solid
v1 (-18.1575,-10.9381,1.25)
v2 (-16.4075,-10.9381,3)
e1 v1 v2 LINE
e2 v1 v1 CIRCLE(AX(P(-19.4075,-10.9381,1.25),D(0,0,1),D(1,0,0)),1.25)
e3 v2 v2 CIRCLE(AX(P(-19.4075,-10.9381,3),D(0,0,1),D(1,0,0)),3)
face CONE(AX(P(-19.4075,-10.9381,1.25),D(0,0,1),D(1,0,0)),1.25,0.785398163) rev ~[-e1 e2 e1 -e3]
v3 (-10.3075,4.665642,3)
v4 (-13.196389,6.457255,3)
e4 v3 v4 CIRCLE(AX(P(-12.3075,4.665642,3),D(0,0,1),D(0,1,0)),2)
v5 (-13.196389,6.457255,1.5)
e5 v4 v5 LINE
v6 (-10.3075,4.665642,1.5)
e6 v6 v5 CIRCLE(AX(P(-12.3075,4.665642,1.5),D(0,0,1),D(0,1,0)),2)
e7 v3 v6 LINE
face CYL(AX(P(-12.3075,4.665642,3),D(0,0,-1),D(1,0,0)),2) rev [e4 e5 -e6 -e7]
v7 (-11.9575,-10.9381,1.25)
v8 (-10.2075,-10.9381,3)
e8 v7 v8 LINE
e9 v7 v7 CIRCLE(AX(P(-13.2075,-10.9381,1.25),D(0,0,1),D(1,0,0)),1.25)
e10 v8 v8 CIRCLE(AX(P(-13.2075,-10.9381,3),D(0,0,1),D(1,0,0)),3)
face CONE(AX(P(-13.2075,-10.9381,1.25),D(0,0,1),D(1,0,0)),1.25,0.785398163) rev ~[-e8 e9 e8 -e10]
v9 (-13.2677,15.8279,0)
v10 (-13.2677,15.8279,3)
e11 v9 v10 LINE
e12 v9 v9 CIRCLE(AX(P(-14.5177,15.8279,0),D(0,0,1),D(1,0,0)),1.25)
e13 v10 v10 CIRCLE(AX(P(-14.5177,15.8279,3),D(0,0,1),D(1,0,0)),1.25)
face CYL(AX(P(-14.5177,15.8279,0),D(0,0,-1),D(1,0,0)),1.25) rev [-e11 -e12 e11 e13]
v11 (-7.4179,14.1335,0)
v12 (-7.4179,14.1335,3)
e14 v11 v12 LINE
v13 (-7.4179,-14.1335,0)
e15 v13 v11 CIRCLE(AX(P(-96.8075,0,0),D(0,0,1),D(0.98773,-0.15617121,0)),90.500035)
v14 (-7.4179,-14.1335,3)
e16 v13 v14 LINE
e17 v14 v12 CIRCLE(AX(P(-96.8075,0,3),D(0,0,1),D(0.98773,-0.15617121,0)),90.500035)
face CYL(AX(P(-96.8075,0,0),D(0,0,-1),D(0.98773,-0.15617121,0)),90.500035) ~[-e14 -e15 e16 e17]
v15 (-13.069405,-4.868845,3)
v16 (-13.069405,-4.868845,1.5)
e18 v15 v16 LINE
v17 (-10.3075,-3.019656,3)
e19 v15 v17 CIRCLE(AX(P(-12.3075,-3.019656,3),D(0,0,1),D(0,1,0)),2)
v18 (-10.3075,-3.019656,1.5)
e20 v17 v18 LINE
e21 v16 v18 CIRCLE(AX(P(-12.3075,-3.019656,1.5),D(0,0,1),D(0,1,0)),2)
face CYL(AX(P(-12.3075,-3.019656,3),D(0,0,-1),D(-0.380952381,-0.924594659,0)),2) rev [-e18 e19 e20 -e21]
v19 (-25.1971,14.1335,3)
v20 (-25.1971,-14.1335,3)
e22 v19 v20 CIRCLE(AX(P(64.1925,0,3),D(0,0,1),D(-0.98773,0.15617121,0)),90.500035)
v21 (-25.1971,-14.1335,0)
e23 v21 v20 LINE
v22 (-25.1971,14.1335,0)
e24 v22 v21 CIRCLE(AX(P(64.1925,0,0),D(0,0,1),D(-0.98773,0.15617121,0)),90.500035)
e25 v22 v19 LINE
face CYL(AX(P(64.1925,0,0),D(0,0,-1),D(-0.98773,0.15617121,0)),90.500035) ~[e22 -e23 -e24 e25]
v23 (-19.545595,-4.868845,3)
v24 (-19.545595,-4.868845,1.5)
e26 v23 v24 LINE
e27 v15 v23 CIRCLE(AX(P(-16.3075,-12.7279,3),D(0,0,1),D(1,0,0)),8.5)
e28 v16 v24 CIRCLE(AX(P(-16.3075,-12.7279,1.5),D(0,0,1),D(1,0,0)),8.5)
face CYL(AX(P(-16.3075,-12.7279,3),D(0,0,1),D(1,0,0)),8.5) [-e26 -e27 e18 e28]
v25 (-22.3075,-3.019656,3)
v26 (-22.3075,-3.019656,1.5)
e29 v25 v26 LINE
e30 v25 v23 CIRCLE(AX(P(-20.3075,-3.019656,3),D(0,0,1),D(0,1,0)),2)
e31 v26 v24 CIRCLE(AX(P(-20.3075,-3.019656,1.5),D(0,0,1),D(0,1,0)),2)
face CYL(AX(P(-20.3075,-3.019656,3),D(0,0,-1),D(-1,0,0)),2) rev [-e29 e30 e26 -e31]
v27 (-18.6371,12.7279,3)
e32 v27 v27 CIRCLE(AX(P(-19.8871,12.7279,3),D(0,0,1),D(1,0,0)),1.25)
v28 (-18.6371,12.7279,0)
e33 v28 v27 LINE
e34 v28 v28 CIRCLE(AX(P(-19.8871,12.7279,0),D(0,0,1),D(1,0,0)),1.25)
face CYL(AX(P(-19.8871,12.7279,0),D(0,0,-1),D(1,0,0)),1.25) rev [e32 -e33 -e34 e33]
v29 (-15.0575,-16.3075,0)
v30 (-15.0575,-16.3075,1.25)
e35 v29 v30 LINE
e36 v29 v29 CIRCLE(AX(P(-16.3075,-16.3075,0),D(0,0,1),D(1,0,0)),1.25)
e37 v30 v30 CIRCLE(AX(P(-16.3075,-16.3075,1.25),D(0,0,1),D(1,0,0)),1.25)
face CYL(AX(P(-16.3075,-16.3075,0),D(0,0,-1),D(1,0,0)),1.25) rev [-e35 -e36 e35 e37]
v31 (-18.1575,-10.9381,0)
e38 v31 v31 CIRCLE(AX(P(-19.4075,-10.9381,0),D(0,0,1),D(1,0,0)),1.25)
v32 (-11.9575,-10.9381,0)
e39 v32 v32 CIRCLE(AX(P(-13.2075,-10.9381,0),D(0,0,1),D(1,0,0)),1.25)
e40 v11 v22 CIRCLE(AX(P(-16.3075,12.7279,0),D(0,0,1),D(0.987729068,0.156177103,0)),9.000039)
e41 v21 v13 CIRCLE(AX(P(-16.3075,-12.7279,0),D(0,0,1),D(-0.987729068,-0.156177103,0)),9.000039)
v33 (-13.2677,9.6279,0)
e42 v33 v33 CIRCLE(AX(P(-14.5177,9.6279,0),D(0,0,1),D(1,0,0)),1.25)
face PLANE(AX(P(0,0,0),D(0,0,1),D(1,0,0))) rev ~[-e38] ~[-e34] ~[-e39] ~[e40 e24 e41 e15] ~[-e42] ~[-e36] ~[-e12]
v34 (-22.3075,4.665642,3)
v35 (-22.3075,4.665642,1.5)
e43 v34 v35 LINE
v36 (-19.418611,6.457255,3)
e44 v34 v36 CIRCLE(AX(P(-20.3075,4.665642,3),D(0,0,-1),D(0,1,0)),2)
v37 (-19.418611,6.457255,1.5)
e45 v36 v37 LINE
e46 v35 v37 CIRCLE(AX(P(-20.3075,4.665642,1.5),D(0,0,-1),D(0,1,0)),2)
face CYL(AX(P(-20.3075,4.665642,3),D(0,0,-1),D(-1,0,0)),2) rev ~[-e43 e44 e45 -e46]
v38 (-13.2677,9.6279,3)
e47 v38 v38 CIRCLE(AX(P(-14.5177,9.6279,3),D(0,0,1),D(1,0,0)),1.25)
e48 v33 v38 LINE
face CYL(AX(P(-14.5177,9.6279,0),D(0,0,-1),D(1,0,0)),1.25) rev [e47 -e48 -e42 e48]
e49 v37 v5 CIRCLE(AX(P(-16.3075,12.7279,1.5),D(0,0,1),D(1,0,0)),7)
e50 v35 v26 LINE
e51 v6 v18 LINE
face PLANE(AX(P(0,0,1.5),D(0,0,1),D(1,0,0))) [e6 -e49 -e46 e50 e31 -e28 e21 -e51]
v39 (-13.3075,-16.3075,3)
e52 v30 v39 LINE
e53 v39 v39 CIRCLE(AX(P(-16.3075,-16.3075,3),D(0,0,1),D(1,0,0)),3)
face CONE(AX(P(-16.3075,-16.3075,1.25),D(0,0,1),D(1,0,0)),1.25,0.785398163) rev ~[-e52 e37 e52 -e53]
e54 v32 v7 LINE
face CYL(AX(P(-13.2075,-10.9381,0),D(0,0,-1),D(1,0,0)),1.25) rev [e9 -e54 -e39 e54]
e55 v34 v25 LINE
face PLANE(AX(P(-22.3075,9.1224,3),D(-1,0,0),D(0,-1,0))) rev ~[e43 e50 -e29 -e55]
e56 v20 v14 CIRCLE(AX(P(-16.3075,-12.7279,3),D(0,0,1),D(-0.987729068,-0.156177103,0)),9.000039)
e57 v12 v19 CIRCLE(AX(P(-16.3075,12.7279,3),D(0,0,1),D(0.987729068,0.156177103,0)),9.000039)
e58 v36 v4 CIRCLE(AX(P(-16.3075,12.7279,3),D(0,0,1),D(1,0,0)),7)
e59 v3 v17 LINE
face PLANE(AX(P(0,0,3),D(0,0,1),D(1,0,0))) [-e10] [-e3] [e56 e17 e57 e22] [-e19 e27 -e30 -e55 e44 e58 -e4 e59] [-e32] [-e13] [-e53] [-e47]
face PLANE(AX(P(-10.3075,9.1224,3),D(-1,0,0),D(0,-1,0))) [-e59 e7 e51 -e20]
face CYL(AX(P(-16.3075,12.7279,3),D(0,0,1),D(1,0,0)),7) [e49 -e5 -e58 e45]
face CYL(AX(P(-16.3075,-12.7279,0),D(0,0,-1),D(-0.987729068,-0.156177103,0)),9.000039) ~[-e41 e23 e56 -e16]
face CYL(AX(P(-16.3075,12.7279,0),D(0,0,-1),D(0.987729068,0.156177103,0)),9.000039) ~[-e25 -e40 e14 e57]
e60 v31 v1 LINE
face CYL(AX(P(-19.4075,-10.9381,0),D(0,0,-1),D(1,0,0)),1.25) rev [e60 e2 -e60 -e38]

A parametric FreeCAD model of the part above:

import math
import FreeCAD as App
import Part
import Sketcher
from FreeCAD import Vector


def edges_at(feature, points):
    """Names of the edges that pass closest to the given points."""
    edges = feature.Shape.Edges
    near = lambda p: min(range(len(edges)), key=lambda i: edges[i].distToShape(Part.Vertex(*p))[0])
    return sorted({f"Edge{near(p) + 1}" for p in points})

doc = App.newDocument("Part")
params = doc.addObject("Spreadsheet::Sheet", "Params")
for row, (alias, value) in enumerate([
    ("sketch1_radius", "9 mm"),
    ("sketch1_diameter", "2.5 mm"),
    ("sketch1_radius2", "90.5 mm"),
    ("pad1_length", "3 mm"),
    ("chamfer_size", "1.75 mm"),
    ("sketch2_radius", "7 mm"),
    ("sketch2_radius2", "8.5 mm"),
    ("sketch2_width", "6 mm"),
    ("pocket1_length", "1.5 mm"),
    ("fillet_radius", "2 mm"),
], start=1):
    params.set(f"A{row}", alias)
    params.set(f"B{row}", "=" + value)
    params.setAlias(f"B{row}", alias)

body = doc.addObject("PartDesign::Body", "Body")

# Sketch on XY plane
sketch1 = doc.addObject("Sketcher::SketchObject", "Sketch")
body.addObject(sketch1)
sketch1.AttachmentSupport = (doc.XY_Plane, [""])
sketch1.MapMode = "FlatFace"
sketch1.addGeometry([
    Part.ArcOfCircle(Part.Circle(Vector(-96.8, 0, 0), Vector(0, 0, 1), 90.5), math.radians(-8.98), math.radians(8.98)),  # 0
    Part.ArcOfCircle(Part.Circle(Vector(-16.3, 12.7, 0), Vector(0, 0, 1), 9), math.radians(9), math.radians(171)),  # 1
    Part.ArcOfCircle(Part.Circle(Vector(64.2, 0, 0), Vector(0, 0, 1), 90.5), math.radians(171.02), math.radians(188.98)),  # 2
    Part.ArcOfCircle(Part.Circle(Vector(-16.3, -12.7, 0), Vector(0, 0, 1), 9), math.radians(-171), math.radians(-9)),  # 3
    Part.Circle(Vector(-19.4, -10.9, 0), Vector(0, 0, 1), 1.2),  # 4
    Part.Circle(Vector(-16.3, -16.3, 0), Vector(0, 0, 1), 1.2),  # 5
    Part.Circle(Vector(-13.2, -10.9, 0), Vector(0, 0, 1), 1.2),  # 6
    Part.Circle(Vector(-19.9, 12.7, 0), Vector(0, 0, 1), 1.2),  # 7
    Part.Circle(Vector(-14.5, 9.6, 0), Vector(0, 0, 1), 1.2),  # 8
    Part.Circle(Vector(-14.5, 15.8, 0), Vector(0, 0, 1), 1.2),  # 9
], False)
sketch1.addConstraint([
    Sketcher.Constraint("Tangent", 0, 2, 1, 1),
    Sketcher.Constraint("Tangent", 1, 2, 2, 1),
    Sketcher.Constraint("Tangent", 2, 2, 3, 1),
    Sketcher.Constraint("Tangent", 3, 2, 0, 1),
    Sketcher.Constraint("Equal", 0, 2),
    Sketcher.Constraint("Equal", 1, 3),
    Sketcher.Constraint("Equal", 4, 5),
    Sketcher.Constraint("Equal", 5, 6),
    Sketcher.Constraint("Equal", 6, 7),
    Sketcher.Constraint("Equal", 7, 8),
    Sketcher.Constraint("Equal", 8, 9),
    Sketcher.Constraint("Symmetric", 1, 3, 3, 3, -1),
    Sketcher.Constraint("Horizontal", 4, 3, 6, 3),
    Sketcher.Constraint("Horizontal", 1, 3, 7, 3),
    Sketcher.Constraint("Vertical", 3, 3, 5, 3),
    Sketcher.Constraint("Vertical", 8, 3, 9, 3),
    Sketcher.Constraint("Radius", 1, 9.0),
    Sketcher.Constraint("Diameter", 4, 2.5),
    Sketcher.Constraint("Radius", 0, 90.5),
    Sketcher.Constraint("DistanceX", 4, 3, 6, 3, 6.2),
    Sketcher.Constraint("DistanceY", 8, 3, 9, 3, 6.2),
    Sketcher.Constraint("DistanceX", 0, 3, 2, 3, 161.0),
    Sketcher.Constraint("DistanceX", 4, 3, 3, 3, 3.1),
    Sketcher.Constraint("DistanceY", 8, 3, 1, 3, 3.1),
    Sketcher.Constraint("DistanceX", 1, 2, 7, 3, 5.31),
    Sketcher.Constraint("DistanceY", 4, 3, -1, 1, 10.938),
    Sketcher.Constraint("DistanceX", 7, 3, -1, 1, 19.887),
    Sketcher.Constraint("DistanceY", 5, 3, 2, 2, 2.174),
    Sketcher.Constraint("DistanceX", 8, 3, -1, 1, 14.5177),
])
sketch1.setExpression("Constraints[16]", "Params.sketch1_radius")
sketch1.setExpression("Constraints[17]", "Params.sketch1_diameter")
sketch1.setExpression("Constraints[18]", "Params.sketch1_radius2")
pad1 = doc.addObject("PartDesign::Pad", "Pad")
body.addObject(pad1)
pad1.Profile = sketch1
pad1.setExpression("Length", "Params.pad1_length")
doc.recompute()

chamfer = doc.addObject("PartDesign::Chamfer", "Chamfer")
body.addObject(chamfer)
chamfer.Base = (pad1, edges_at(pad1, [(-14.457, -10.938, 3), (-20.657, -10.938, 3), (-17.558, -16.308, 3)]))
chamfer.setExpression("Size", "Params.chamfer_size")

# Sketch on XY plane
sketch2 = doc.addObject("Sketcher::SketchObject", "Sketch001")
body.addObject(sketch2)
sketch2.AttachmentSupport = (doc.XY_Plane, [""])
sketch2.MapMode = "FlatFace"
sketch2.AttachmentOffset = App.Placement(Vector(0, 0, 3), App.Rotation())
sketch2.addGeometry([
    Part.ArcOfCircle(Part.Circle(Vector(-16, 13, 0), Vector(0, 0, 1), 7), math.radians(-149), math.radians(-31)),
    Part.LineSegment(Vector(-22, 9, 0), Vector(-22, -7, 0)),
    Part.ArcOfCircle(Part.Circle(Vector(-16, -13, 0), Vector(0, 0, 1), 8), math.radians(45), math.radians(135)),
    Part.LineSegment(Vector(-10, -7, 0), Vector(-10, 9, 0)),
], False)
sketch2.addConstraint([
    Sketcher.Constraint("Coincident", 0, 1, 1, 1),
    Sketcher.Constraint("Coincident", 1, 2, 2, 2),
    Sketcher.Constraint("Coincident", 2, 1, 3, 1),
    Sketcher.Constraint("Coincident", 3, 2, 0, 2),
    Sketcher.Constraint("Vertical", 1),
    Sketcher.Constraint("Vertical", 3),
    Sketcher.Constraint("Symmetric", 0, 3, 2, 3, -1),
    Sketcher.Constraint("Horizontal", 1, 2, 2, 1),
    Sketcher.Constraint("Radius", 0, 7.0),
    Sketcher.Constraint("Radius", 2, 8.5),
    Sketcher.Constraint("DistanceX", 0, 1, 0, 3, 6.0),
    Sketcher.Constraint("DistanceY", 1, 2, 1, 1, 15.8295),
    Sketcher.Constraint("DistanceX", 0, 3, -1, 1, 16.3075),
])
sketch2.setExpression("Constraints[8]", "Params.sketch2_radius")
sketch2.setExpression("Constraints[9]", "Params.sketch2_radius2")
sketch2.setExpression("Constraints[10]", "Params.sketch2_width")
pocket1 = doc.addObject("PartDesign::Pocket", "Pocket")
body.addObject(pocket1)
pocket1.Profile = sketch2
pocket1.setExpression("Length", "Params.pocket1_length")
doc.recompute()

fillet = doc.addObject("PartDesign::Fillet", "Fillet")
body.addObject(fillet)
fillet.Base = (pocket1, edges_at(pocket1, [
    (-22.308, 9.122, 2.25),
    (-22.308, -6.707, 2.25),
    (-10.307, 9.122, 2.25),
    (-10.307, -6.707, 2.25),
]))
fillet.setExpression("Radius", "Params.fillet_radius")

doc.recompute()
